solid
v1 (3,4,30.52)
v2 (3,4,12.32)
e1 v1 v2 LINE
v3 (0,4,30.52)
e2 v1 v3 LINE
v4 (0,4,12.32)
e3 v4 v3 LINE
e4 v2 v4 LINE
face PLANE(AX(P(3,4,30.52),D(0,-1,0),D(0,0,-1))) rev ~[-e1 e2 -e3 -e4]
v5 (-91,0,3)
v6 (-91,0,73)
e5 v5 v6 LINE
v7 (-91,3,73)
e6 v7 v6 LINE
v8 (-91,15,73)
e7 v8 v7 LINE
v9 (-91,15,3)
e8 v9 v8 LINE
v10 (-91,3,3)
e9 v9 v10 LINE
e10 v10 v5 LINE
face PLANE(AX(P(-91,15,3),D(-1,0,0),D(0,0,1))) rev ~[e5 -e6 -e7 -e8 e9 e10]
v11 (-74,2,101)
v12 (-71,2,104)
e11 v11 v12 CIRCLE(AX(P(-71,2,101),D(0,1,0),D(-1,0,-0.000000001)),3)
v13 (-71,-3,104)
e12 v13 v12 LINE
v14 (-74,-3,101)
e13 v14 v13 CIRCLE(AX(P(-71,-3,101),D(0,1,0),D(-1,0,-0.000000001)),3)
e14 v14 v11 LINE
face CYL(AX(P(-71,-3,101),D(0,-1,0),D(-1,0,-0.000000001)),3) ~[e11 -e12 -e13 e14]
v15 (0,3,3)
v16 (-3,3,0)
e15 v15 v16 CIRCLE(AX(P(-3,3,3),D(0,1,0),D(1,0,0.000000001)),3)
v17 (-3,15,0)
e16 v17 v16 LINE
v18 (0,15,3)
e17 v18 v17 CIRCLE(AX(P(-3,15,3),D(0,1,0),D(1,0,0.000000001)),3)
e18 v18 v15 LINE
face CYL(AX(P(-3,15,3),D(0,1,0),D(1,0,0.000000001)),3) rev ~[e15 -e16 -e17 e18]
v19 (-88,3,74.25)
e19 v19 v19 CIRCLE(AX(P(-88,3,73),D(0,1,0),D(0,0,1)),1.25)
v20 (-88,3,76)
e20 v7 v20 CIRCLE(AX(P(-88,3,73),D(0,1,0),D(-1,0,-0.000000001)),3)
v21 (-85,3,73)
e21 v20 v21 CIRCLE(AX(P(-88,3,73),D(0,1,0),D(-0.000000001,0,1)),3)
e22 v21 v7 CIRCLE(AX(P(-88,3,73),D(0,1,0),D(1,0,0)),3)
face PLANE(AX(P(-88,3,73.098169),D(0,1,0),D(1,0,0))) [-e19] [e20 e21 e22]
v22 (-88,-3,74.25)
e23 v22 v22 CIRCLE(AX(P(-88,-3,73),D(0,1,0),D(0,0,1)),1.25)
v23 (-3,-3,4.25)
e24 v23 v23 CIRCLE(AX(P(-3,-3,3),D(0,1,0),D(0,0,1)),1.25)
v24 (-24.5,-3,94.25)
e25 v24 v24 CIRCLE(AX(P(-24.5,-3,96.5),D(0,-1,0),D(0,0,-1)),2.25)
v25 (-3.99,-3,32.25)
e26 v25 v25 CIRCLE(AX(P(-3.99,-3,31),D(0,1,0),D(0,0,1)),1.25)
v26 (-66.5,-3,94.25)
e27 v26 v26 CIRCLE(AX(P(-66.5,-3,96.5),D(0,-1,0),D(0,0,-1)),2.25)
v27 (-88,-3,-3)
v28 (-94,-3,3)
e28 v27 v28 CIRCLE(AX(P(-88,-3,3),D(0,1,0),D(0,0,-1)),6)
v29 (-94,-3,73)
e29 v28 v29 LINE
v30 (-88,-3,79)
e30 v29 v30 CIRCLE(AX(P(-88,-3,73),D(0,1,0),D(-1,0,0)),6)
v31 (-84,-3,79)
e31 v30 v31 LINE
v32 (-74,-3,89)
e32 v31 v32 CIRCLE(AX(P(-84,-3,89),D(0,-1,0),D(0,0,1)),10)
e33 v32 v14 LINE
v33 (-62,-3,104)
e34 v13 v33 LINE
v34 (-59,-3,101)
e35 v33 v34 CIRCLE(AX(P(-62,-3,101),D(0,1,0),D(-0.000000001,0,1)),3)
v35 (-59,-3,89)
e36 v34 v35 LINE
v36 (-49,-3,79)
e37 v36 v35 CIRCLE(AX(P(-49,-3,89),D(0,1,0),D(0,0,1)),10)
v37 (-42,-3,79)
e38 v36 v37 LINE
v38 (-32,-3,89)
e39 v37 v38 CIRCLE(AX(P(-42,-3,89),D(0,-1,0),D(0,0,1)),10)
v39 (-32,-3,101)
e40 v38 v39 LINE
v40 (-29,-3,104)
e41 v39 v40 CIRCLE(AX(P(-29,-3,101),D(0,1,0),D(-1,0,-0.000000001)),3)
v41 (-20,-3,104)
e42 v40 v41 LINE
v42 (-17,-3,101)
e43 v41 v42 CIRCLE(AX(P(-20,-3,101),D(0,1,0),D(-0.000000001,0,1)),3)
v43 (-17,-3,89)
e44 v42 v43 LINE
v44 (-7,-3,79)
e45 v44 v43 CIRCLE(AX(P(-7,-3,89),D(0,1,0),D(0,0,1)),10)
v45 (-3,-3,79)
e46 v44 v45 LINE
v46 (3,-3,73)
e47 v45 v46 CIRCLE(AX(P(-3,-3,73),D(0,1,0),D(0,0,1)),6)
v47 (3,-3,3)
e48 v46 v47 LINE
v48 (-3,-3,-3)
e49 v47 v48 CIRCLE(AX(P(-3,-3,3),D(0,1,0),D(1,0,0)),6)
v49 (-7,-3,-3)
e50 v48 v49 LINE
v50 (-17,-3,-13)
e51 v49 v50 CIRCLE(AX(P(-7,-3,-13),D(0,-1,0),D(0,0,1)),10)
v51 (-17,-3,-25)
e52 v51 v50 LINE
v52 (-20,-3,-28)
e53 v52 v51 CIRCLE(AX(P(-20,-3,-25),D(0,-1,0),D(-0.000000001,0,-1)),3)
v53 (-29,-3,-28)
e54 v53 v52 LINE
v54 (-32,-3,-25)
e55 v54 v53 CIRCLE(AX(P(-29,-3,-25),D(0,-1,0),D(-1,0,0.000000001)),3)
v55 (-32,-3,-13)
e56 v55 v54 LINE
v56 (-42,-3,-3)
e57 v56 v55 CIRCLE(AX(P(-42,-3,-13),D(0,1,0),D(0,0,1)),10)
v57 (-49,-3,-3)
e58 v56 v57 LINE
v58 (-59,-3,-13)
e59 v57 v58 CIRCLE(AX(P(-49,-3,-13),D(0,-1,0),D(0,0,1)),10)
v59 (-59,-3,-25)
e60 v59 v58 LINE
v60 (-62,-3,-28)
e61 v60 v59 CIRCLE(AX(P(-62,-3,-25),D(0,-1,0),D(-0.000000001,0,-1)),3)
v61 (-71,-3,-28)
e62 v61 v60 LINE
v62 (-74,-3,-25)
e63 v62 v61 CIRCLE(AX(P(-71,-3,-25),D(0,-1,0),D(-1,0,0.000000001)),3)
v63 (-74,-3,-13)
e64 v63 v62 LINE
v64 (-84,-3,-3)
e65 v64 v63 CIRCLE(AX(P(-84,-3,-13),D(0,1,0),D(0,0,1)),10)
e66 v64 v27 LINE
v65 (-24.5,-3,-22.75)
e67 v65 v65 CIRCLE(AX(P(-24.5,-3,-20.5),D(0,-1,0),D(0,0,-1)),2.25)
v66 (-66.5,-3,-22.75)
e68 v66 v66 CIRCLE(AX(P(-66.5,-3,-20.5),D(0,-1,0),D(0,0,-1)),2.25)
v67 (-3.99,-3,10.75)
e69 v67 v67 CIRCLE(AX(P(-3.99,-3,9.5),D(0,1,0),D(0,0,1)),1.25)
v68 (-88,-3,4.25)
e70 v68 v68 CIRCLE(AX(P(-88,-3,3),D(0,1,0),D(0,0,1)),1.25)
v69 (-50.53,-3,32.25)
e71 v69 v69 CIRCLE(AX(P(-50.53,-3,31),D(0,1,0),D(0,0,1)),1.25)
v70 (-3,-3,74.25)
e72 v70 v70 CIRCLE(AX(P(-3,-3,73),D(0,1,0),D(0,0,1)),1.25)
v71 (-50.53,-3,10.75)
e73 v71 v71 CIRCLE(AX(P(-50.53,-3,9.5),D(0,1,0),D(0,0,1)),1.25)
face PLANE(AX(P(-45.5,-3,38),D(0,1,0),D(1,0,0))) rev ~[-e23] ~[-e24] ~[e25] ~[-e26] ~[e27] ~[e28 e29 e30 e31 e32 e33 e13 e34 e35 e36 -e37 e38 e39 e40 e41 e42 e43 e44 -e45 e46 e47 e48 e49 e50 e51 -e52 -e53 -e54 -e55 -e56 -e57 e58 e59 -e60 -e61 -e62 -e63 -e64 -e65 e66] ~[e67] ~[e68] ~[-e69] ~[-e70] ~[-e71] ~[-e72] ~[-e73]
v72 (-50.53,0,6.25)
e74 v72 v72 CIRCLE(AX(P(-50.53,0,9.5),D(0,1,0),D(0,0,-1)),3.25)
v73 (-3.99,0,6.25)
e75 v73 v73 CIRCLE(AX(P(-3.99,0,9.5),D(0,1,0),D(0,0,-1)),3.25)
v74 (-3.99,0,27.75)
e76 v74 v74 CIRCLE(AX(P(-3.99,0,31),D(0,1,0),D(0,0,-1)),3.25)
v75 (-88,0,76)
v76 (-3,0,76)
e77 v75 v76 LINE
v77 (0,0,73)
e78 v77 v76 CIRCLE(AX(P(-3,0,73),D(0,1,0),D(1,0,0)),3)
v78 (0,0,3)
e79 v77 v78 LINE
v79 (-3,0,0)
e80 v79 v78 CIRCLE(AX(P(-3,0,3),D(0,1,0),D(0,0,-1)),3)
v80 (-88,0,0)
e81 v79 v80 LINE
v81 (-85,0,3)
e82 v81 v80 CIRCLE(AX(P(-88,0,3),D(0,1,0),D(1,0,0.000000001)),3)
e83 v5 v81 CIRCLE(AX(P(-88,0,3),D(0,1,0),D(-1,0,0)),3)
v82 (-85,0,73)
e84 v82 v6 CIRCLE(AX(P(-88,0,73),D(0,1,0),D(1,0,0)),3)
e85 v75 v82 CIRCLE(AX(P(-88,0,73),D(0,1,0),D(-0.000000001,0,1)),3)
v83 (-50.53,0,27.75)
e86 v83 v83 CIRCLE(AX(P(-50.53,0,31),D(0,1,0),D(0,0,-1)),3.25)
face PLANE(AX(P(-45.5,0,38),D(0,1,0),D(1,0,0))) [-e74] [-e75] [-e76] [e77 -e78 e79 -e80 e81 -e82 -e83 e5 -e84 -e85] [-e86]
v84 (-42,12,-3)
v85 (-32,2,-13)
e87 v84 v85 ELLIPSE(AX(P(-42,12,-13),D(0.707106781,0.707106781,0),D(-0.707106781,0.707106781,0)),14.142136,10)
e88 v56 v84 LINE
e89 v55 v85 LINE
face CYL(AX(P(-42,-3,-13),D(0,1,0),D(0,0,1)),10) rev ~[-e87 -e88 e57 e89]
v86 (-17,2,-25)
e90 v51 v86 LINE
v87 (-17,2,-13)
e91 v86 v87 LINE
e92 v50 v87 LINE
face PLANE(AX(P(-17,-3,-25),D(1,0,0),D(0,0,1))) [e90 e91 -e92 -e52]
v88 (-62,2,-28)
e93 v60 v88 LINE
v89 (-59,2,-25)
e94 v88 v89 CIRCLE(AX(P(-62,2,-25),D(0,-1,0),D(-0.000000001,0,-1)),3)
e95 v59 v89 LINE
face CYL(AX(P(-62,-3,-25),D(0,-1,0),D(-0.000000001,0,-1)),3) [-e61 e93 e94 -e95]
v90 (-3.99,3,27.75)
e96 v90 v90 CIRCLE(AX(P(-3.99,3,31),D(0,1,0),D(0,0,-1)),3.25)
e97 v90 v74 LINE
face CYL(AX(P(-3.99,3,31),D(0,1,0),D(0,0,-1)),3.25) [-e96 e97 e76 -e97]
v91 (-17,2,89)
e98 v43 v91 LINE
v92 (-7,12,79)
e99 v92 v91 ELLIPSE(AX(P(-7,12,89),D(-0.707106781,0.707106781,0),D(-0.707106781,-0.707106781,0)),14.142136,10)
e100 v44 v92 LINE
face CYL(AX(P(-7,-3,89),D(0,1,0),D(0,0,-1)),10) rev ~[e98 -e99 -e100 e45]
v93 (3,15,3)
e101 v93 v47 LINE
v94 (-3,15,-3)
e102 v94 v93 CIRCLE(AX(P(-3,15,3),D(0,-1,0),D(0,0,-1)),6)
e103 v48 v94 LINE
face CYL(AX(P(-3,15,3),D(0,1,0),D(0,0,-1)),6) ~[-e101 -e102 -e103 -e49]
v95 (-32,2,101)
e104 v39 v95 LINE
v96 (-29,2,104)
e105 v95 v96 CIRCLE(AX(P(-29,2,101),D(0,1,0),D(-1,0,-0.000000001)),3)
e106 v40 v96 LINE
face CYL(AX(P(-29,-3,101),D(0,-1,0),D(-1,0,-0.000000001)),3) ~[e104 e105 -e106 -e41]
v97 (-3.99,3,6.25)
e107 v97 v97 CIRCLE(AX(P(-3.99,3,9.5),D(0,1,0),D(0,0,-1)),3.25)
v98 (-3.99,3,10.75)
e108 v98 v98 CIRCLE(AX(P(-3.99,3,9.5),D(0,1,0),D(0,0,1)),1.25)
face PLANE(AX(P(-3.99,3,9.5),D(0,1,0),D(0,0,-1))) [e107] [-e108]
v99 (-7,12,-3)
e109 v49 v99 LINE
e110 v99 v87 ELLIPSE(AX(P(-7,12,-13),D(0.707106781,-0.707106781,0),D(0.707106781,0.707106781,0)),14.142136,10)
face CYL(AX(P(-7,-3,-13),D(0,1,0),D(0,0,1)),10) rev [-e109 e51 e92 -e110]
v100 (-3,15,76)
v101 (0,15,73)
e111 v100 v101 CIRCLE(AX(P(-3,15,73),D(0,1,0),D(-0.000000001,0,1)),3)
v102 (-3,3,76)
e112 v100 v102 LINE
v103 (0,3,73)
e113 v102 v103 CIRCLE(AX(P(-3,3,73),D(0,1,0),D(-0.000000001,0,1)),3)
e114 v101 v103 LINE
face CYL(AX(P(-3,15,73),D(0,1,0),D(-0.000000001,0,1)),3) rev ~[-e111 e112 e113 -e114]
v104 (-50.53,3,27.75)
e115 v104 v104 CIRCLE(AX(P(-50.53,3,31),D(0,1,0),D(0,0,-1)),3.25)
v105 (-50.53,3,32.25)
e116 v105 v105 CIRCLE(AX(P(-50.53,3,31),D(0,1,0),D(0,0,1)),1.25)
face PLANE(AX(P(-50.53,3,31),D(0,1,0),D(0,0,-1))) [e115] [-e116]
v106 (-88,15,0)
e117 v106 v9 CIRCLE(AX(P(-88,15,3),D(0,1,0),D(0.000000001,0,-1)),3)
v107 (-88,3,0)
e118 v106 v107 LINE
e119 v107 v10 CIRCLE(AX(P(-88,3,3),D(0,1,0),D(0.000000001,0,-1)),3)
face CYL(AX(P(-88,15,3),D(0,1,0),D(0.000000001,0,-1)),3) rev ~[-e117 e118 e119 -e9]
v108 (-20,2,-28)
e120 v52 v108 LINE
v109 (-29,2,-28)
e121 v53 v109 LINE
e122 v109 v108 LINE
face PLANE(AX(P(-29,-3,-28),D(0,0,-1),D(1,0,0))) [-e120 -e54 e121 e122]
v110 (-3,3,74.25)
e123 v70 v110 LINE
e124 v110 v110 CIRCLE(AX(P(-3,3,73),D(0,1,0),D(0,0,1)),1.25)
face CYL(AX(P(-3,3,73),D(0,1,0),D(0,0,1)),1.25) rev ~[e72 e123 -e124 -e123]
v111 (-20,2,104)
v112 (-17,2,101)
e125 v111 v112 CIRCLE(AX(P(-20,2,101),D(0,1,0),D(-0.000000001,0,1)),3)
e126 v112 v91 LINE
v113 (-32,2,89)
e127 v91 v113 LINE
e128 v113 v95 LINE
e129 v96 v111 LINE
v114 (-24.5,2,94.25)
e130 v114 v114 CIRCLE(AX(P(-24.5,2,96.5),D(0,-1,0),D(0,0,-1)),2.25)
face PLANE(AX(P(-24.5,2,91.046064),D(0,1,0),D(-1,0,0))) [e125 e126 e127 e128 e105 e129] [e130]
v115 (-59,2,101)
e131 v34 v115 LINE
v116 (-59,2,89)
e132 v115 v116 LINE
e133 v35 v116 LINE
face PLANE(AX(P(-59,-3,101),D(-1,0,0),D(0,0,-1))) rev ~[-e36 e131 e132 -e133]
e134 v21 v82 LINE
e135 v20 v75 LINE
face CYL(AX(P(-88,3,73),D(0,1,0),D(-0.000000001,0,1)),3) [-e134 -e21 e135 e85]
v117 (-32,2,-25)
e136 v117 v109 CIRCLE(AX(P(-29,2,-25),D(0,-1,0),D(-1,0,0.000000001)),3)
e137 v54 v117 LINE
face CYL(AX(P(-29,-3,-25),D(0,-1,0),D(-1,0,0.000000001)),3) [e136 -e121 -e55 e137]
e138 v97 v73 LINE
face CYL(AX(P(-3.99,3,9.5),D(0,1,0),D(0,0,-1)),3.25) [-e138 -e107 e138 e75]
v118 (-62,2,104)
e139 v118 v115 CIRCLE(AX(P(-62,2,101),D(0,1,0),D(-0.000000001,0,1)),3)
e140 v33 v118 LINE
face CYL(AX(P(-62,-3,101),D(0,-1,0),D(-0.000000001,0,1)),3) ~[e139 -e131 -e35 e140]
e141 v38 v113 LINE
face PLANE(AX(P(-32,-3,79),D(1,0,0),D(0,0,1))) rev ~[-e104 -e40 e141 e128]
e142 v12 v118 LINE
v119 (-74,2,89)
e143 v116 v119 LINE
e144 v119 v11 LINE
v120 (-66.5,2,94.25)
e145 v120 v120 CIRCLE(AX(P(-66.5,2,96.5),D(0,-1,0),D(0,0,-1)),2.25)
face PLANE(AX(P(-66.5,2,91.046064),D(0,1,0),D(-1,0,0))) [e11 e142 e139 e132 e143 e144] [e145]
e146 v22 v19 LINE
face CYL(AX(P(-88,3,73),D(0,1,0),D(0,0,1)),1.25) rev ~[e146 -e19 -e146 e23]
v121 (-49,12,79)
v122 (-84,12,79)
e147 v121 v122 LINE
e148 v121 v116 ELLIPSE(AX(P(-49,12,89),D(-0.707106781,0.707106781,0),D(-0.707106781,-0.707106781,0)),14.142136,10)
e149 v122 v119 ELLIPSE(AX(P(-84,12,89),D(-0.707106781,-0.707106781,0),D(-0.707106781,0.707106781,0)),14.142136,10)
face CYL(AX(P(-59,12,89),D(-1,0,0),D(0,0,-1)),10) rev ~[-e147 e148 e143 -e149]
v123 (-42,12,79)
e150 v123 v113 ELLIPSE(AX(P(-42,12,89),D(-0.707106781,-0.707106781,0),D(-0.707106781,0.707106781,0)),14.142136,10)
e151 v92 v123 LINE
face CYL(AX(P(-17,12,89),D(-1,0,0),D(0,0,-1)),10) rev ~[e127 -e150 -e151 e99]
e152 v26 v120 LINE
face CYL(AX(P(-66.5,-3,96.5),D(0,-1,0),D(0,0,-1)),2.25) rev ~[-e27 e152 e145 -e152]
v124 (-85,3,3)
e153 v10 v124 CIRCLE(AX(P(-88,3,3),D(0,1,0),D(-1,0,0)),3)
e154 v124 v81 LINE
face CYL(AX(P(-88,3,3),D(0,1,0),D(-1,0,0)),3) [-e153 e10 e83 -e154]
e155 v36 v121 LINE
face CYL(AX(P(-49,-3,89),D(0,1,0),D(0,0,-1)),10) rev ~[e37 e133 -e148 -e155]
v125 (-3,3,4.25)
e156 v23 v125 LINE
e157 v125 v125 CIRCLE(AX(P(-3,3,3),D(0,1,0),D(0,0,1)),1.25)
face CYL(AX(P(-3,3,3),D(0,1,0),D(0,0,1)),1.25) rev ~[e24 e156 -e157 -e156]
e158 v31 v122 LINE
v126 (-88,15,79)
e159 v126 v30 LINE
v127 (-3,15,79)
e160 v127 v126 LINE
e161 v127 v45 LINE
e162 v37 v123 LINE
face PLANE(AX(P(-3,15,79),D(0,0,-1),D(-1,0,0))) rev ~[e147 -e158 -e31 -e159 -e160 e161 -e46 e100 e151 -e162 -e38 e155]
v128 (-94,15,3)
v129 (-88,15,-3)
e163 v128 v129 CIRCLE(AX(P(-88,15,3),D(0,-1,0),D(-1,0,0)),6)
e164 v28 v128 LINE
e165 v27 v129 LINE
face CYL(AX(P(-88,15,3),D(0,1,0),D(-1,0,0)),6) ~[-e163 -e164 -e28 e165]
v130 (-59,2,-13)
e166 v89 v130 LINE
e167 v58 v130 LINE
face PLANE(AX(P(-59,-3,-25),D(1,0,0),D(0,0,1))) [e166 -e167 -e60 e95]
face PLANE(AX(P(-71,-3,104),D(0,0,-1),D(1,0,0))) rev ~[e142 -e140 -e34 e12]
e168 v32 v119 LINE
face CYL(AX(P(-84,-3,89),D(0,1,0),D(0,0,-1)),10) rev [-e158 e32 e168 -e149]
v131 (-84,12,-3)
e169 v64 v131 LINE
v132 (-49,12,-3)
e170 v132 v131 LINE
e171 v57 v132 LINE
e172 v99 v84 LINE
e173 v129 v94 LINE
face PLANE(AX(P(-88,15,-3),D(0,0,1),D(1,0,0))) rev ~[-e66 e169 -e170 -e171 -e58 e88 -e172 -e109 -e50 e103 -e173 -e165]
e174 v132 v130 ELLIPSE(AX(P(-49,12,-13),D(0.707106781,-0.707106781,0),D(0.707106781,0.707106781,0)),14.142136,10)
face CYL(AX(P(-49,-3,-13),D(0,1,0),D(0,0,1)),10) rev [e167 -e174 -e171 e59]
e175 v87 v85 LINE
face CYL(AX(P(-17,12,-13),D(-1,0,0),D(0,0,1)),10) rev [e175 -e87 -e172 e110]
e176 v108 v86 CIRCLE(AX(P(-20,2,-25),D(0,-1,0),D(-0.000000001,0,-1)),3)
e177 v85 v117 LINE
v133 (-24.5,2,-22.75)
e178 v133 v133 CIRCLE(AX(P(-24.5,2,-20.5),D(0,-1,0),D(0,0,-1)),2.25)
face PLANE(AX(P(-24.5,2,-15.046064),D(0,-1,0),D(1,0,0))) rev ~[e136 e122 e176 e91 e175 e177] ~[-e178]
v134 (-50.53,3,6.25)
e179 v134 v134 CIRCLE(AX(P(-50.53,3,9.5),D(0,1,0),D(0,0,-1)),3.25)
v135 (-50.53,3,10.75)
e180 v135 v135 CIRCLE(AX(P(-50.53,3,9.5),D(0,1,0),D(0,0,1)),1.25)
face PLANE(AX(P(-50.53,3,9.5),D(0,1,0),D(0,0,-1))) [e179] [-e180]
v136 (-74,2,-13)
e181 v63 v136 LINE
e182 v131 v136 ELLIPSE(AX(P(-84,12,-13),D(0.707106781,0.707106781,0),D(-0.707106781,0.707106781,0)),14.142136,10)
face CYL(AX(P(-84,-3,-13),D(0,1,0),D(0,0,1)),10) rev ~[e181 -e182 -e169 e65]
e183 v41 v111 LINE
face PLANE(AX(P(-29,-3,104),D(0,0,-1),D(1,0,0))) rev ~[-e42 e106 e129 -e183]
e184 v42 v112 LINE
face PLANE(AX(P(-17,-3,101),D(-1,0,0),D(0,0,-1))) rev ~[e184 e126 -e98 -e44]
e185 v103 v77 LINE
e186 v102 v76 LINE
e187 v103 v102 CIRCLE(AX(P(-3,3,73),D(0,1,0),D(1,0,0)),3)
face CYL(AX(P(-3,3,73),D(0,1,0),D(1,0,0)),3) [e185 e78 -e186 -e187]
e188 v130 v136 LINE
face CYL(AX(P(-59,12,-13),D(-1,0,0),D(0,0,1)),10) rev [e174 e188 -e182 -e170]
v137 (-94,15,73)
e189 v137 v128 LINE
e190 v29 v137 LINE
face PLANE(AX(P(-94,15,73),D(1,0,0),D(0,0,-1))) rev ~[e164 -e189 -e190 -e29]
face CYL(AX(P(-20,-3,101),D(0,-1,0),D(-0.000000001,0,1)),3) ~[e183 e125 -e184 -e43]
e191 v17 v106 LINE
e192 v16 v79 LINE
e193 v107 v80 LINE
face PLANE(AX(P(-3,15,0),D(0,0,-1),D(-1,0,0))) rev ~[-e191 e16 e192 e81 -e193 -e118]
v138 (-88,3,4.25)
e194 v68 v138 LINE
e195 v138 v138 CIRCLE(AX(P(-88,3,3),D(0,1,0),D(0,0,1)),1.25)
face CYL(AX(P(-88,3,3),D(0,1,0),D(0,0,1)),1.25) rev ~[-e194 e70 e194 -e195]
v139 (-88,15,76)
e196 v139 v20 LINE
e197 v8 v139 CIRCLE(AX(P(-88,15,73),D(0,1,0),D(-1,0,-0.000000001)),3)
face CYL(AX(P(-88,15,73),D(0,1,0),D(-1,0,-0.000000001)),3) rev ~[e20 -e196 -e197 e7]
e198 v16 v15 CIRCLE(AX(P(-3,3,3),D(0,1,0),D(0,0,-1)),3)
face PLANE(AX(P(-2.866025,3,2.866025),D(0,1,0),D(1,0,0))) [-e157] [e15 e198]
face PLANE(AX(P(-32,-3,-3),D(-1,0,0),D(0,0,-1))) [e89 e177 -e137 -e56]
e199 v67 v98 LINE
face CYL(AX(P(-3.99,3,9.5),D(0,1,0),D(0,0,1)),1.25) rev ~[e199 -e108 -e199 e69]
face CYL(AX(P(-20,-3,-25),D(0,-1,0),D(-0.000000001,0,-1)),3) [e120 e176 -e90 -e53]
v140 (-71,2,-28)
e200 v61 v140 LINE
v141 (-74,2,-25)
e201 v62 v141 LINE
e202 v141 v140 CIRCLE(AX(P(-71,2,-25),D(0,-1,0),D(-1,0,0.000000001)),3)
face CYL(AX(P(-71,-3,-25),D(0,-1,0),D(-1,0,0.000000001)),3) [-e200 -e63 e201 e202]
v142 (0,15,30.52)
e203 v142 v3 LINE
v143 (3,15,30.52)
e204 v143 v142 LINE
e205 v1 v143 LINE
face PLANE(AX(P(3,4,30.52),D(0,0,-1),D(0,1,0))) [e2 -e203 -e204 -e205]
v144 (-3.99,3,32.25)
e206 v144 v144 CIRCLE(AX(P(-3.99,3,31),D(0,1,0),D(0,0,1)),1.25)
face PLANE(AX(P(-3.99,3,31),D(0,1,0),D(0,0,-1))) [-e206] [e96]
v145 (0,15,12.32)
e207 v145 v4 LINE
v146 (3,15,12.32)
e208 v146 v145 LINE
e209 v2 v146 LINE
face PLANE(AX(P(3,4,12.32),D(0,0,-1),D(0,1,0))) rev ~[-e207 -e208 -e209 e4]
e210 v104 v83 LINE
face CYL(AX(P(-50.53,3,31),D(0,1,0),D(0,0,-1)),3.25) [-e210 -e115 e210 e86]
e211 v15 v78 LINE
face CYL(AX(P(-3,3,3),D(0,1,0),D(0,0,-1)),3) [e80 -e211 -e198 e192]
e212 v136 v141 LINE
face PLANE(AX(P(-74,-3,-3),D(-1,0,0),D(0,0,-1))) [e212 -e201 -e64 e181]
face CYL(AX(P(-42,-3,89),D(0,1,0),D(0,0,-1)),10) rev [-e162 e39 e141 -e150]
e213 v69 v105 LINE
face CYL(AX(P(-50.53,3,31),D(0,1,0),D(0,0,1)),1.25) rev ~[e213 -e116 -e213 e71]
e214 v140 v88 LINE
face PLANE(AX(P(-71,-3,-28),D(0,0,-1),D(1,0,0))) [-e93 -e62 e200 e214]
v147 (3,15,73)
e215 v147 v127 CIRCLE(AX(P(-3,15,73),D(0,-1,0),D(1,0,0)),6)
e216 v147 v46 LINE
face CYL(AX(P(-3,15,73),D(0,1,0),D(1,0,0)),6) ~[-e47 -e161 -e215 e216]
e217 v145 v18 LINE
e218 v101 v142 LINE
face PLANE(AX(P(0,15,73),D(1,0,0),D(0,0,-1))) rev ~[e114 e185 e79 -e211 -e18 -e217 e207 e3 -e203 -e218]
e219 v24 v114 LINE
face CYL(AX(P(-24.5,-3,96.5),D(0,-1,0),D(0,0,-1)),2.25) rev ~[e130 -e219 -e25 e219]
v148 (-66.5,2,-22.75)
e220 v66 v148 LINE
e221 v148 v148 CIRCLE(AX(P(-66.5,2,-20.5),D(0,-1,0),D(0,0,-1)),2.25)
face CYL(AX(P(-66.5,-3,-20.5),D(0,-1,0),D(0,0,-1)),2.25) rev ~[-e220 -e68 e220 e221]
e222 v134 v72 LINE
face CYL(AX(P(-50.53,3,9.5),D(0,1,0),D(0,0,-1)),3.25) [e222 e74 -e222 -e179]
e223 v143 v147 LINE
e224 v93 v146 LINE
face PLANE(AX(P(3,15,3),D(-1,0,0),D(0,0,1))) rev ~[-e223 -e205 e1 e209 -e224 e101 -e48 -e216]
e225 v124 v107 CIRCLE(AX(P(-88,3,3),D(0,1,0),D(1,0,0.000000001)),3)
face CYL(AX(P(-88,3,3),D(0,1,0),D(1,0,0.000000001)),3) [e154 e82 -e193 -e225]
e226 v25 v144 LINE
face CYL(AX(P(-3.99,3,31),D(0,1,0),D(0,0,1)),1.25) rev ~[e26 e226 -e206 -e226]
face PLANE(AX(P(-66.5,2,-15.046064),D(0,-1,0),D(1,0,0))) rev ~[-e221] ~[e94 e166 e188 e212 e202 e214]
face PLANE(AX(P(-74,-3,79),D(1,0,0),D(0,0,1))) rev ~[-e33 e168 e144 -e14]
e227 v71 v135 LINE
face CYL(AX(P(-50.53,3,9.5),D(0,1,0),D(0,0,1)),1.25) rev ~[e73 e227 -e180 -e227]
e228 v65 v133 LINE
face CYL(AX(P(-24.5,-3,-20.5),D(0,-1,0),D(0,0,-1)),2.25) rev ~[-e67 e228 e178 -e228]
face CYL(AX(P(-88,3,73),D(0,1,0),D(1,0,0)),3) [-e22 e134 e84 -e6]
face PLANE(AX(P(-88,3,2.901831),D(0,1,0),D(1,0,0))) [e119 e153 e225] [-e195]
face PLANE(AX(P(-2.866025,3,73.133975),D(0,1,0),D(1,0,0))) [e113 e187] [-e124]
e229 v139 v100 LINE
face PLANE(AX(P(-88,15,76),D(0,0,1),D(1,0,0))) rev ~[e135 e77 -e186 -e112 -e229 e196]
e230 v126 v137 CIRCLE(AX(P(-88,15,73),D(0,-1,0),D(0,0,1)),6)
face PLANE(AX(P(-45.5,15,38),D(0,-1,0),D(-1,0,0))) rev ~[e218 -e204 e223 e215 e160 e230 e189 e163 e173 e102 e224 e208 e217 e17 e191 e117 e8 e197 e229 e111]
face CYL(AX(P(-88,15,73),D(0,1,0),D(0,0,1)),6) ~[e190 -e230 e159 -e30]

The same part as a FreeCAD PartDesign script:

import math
import FreeCAD as App
import Part
import Sketcher


def edges_at(feature, points):
    """Names of the edges that pass closest to the given points."""
    edges = feature.Shape.Edges
    near = lambda p: min(range(len(edges)), key=lambda i: edges[i].distToShape(Part.Vertex(*p))[0])
    return sorted({f"Edge{near(p) + 1}" for p in points})


def add_polygon(sketch, points):
    """Adds a closed chain of lines whose ends are joined by coincident constraints."""
    first, n = sketch.GeometryCount, len(points)
    for a, b in zip(points, points[1:] + points[:1]):
        sketch.addGeometry(Part.LineSegment(App.Vector(*a, 0), App.Vector(*b, 0)), False)
    for i in range(n):
        sketch.addConstraint(Sketcher.Constraint("Coincident", first + i, 2, first + (i + 1) % n, 1))

doc = App.newDocument("Part")
params = doc.addObject("Spreadsheet::Sheet", "Params")
for row, (alias, value) in enumerate([
    ("sketch1_radius", "6 mm"),
    ("sketch1_width", "85 mm"),
    ("sketch1_height", "70 mm"),
    ("pad1_length", "3 mm"),
    ("sketch2_radius", "6 mm"),
    ("sketch2_width", "85 mm"),
    ("sketch2_height", "70 mm"),
    ("pad2_length", "15 mm"),
    ("sketch3_radius", "3 mm"),
    ("sketch3_diameter", "2.5 mm"),
    ("sketch3_diameter2", "6.5 mm"),
    ("pad3_length", "3 mm"),
    ("sketch4_diameter", "2.5 mm"),
    ("sketch5_width", "11 mm"),
    ("sketch5_height", "18.2 mm"),
    ("sketch6_radius", "3 mm"),
    ("sketch6_diameter", "4.5 mm"),
    ("sketch6_width", "15 mm"),
    ("sketch6_height", "22 mm"),
    ("pad4_length", "5 mm"),
    ("fillet_radius", "10 mm"),
], start=1):
    params.set(f"A{row}", alias)
    params.set(f"B{row}", "=" + value)
    params.setAlias(f"B{row}", alias)

body = doc.addObject("PartDesign::Body", "Body")

# Sketch on XZ plane
sketch1 = body.newObject("Sketcher::SketchObject", "Sketch")
sketch1.AttachmentSupport = (doc.getObject("XZ_Plane"), [""])
sketch1.MapMode = "FlatFace"
sketch1.addGeometry(Part.LineSegment(App.Vector(-3, -3, 0), App.Vector(-88, -3, 0)), False)
sketch1.addGeometry(Part.ArcOfCircle(Part.Circle(App.Vector(-88, 3, 0), App.Vector(0, 0, 1), 6), math.radians(180), math.radians(270)), False)
sketch1.addGeometry(Part.LineSegment(App.Vector(-94, 3, 0), App.Vector(-94, 73, 0)), False)
sketch1.addGeometry(Part.ArcOfCircle(Part.Circle(App.Vector(-88, 73, 0), App.Vector(0, 0, 1), 6), math.radians(90), math.radians(180)), False)
sketch1.addGeometry(Part.LineSegment(App.Vector(-88, 79, 0), App.Vector(-3, 79, 0)), False)
sketch1.addGeometry(Part.ArcOfCircle(Part.Circle(App.Vector(-3, 73, 0), App.Vector(0, 0, 1), 6), math.radians(0), math.radians(90)), False)
sketch1.addGeometry(Part.LineSegment(App.Vector(3, 73, 0), App.Vector(3, 3, 0)), False)
sketch1.addGeometry(Part.ArcOfCircle(Part.Circle(App.Vector(-3, 3, 0), App.Vector(0, 0, 1), 6), math.radians(-90), math.radians(0)), False)
sketch1.addConstraint(Sketcher.Constraint("Tangent", 0, 2, 1, 2))
sketch1.addConstraint(Sketcher.Constraint("Tangent", 1, 1, 2, 1))
sketch1.addConstraint(Sketcher.Constraint("Tangent", 2, 2, 3, 2))
sketch1.addConstraint(Sketcher.Constraint("Tangent", 3, 1, 4, 1))
sketch1.addConstraint(Sketcher.Constraint("Tangent", 4, 2, 5, 2))
sketch1.addConstraint(Sketcher.Constraint("Tangent", 5, 1, 6, 1))
sketch1.addConstraint(Sketcher.Constraint("Tangent", 6, 2, 7, 2))
sketch1.addConstraint(Sketcher.Constraint("Tangent", 7, 1, 0, 1))
sketch1.addConstraint(Sketcher.Constraint("Horizontal", 0))
sketch1.addConstraint(Sketcher.Constraint("Vertical", 2))
sketch1.addConstraint(Sketcher.Constraint("Horizontal", 4))
sketch1.addConstraint(Sketcher.Constraint("Vertical", 6))
sketch1.addConstraint(Sketcher.Constraint("Equal", 1, 3))
sketch1.addConstraint(Sketcher.Constraint("Equal", 3, 5))
sketch1.addConstraint(Sketcher.Constraint("Equal", 5, 7))
sketch1.addConstraint(Sketcher.Constraint("Symmetric", 6, 2, 7, 1, -1, 1))
sketch1.addConstraint(Sketcher.Constraint("Radius", 1, 6.0))
sketch1.addConstraint(Sketcher.Constraint("DistanceX", 0, 2, 0, 1, 85.0))
sketch1.addConstraint(Sketcher.Constraint("DistanceY", 2, 1, 2, 2, 70.0))
sketch1.setExpression("Constraints[16]", "Params.sketch1_radius")
sketch1.setExpression("Constraints[17]", "Params.sketch1_width")
sketch1.setExpression("Constraints[18]", "Params.sketch1_height")
pad1 = body.newObject("PartDesign::Pad", "Pad")
pad1.Profile = sketch1
pad1.setExpression("Length", "Params.pad1_length")

# Sketch on XZ plane
sketch2 = body.newObject("Sketcher::SketchObject", "Sketch001")
sketch2.AttachmentSupport = (doc.getObject("XZ_Plane"), [""])
sketch2.MapMode = "FlatFace"
sketch2.AttachmentOffset = App.Placement(App.Vector(0, 0, -15), App.Rotation())
sketch2.addGeometry(Part.ArcOfCircle(Part.Circle(App.Vector(-3, 3, 0), App.Vector(0, 0, 1), 6), math.radians(-90), math.radians(0)), False)
sketch2.addGeometry(Part.LineSegment(App.Vector(-3, -3, 0), App.Vector(-88, -3, 0)), False)
sketch2.addGeometry(Part.ArcOfCircle(Part.Circle(App.Vector(-88, 3, 0), App.Vector(0, 0, 1), 6), math.radians(180), math.radians(270)), False)
sketch2.addGeometry(Part.LineSegment(App.Vector(-94, 3, 0), App.Vector(-94, 73, 0)), False)
sketch2.addGeometry(Part.ArcOfCircle(Part.Circle(App.Vector(-88, 73, 0), App.Vector(0, 0, 1), 6), math.radians(90), math.radians(180)), False)
sketch2.addGeometry(Part.LineSegment(App.Vector(-88, 79, 0), App.Vector(-3, 79, 0)), False)
sketch2.addGeometry(Part.ArcOfCircle(Part.Circle(App.Vector(-3, 73, 0), App.Vector(0, 0, 1), 6), math.radians(0), math.radians(90)), False)
sketch2.addGeometry(Part.LineSegment(App.Vector(3, 73, 0), App.Vector(3, 3, 0)), False)
sketch2.addGeometry(Part.ArcOfCircle(Part.Circle(App.Vector(-3, 3, 0), App.Vector(0, 0, 1), 3), math.radians(-90), math.radians(0)), False)
sketch2.addGeometry(Part.LineSegment(App.Vector(0, 3, 0), App.Vector(0, 73, 0)), False)
sketch2.addGeometry(Part.ArcOfCircle(Part.Circle(App.Vector(-3, 73, 0), App.Vector(0, 0, 1), 3), math.radians(0), math.radians(90)), False)
sketch2.addGeometry(Part.LineSegment(App.Vector(-3, 76, 0), App.Vector(-88, 76, 0)), False)
sketch2.addGeometry(Part.ArcOfCircle(Part.Circle(App.Vector(-88, 73, 0), App.Vector(0, 0, 1), 3), math.radians(90), math.radians(180)), False)
sketch2.addGeometry(Part.LineSegment(App.Vector(-91, 73, 0), App.Vector(-91, 3, 0)), False)
sketch2.addGeometry(Part.ArcOfCircle(Part.Circle(App.Vector(-88, 3, 0), App.Vector(0, 0, 1), 3), math.radians(180), math.radians(270)), False)
sketch2.addGeometry(Part.LineSegment(App.Vector(-88, 0, 0), App.Vector(-3, 0, 0)), False)
sketch2.addConstraint(Sketcher.Constraint("Tangent", 0, 1, 1, 1))
sketch2.addConstraint(Sketcher.Constraint("Tangent", 1, 2, 2, 2))
sketch2.addConstraint(Sketcher.Constraint("Tangent", 2, 1, 3, 1))
sketch2.addConstraint(Sketcher.Constraint("Tangent", 3, 2, 4, 2))
sketch2.addConstraint(Sketcher.Constraint("Tangent", 4, 1, 5, 1))
sketch2.addConstraint(Sketcher.Constraint("Tangent", 5, 2, 6, 2))
sketch2.addConstraint(Sketcher.Constraint("Tangent", 6, 1, 7, 1))
sketch2.addConstraint(Sketcher.Constraint("Tangent", 7, 2, 0, 2))
sketch2.addConstraint(Sketcher.Constraint("Tangent", 8, 2, 9, 1))
sketch2.addConstraint(Sketcher.Constraint("Tangent", 9, 2, 10, 1))
sketch2.addConstraint(Sketcher.Constraint("Tangent", 10, 2, 11, 1))
sketch2.addConstraint(Sketcher.Constraint("Tangent", 11, 2, 12, 1))
sketch2.addConstraint(Sketcher.Constraint("Tangent", 12, 2, 13, 1))
sketch2.addConstraint(Sketcher.Constraint("Tangent", 13, 2, 14, 1))
sketch2.addConstraint(Sketcher.Constraint("Tangent", 14, 2, 15, 1))
sketch2.addConstraint(Sketcher.Constraint("Tangent", 15, 2, 8, 1))
sketch2.addConstraint(Sketcher.Constraint("Horizontal", 1))
sketch2.addConstraint(Sketcher.Constraint("Vertical", 3))
sketch2.addConstraint(Sketcher.Constraint("Horizontal", 5))
sketch2.addConstraint(Sketcher.Constraint("Vertical", 7))
sketch2.addConstraint(Sketcher.Constraint("Vertical", 9))
sketch2.addConstraint(Sketcher.Constraint("Horizontal", 11))
sketch2.addConstraint(Sketcher.Constraint("Vertical", 13))
sketch2.addConstraint(Sketcher.Constraint("Horizontal", 15))
sketch2.addConstraint(Sketcher.Constraint("Coincident", 8, 3, 0, 3))
sketch2.addConstraint(Sketcher.Constraint("Coincident", 10, 3, 6, 3))
sketch2.addConstraint(Sketcher.Constraint("Coincident", 12, 3, 4, 3))
sketch2.addConstraint(Sketcher.Constraint("Equal", 0, 2))
sketch2.addConstraint(Sketcher.Constraint("Equal", 2, 4))
sketch2.addConstraint(Sketcher.Constraint("Equal", 4, 6))
sketch2.addConstraint(Sketcher.Constraint("Equal", 12, 14))
sketch2.addConstraint(Sketcher.Constraint("Symmetric", 0, 1, 7, 2, -1, 1))
sketch2.addConstraint(Sketcher.Constraint("PointOnObject", 8, 2, -2))
sketch2.addConstraint(Sketcher.Constraint("Radius", 0, 6.0))
sketch2.addConstraint(Sketcher.Constraint("DistanceX", 1, 2, 1, 1, 85.0))
sketch2.addConstraint(Sketcher.Constraint("DistanceY", 3, 1, 3, 2, 70.0))
sketch2.setExpression("Constraints[33]", "Params.sketch2_radius")
sketch2.setExpression("Constraints[34]", "Params.sketch2_width")
sketch2.setExpression("Constraints[35]", "Params.sketch2_height")
pad2 = body.newObject("PartDesign::Pad", "Pad001")
pad2.Profile = sketch2
pad2.setExpression("Length", "Params.pad2_length")

# Sketch on XZ plane
sketch3 = body.newObject("Sketcher::SketchObject", "Sketch002")
sketch3.AttachmentSupport = (doc.getObject("XZ_Plane"), [""])
sketch3.MapMode = "FlatFace"
sketch3.AttachmentOffset = App.Placement(App.Vector(0, 0, -3), App.Rotation())
sketch3.addGeometry(Part.ArcOfCircle(Part.Circle(App.Vector(-88, 3, 0), App.Vector(0, 0, 1), 3), math.radians(-90), math.radians(0)), False)
sketch3.addGeometry(Part.ArcOfCircle(Part.Circle(App.Vector(-88, 3, 0), App.Vector(0, 0, 1), 3), math.radians(180), math.radians(270)), False)
sketch3.addGeometry(Part.ArcOfCircle(Part.Circle(App.Vector(-88, 3, 0), App.Vector(0, 0, 1), 3), math.radians(0), math.radians(180)), False)
sketch3.addGeometry(Part.Circle(App.Vector(-88, 3, 0), App.Vector(0, 0, 1), 1.25), False)
sketch3.addGeometry(Part.Circle(App.Vector(-50.53, 9.5, 0), App.Vector(0, 0, 1), 3.25), False)
sketch3.addGeometry(Part.Circle(App.Vector(-50.53, 9.5, 0), App.Vector(0, 0, 1), 1.25), False)
sketch3.addGeometry(Part.Circle(App.Vector(-50.53, 31, 0), App.Vector(0, 0, 1), 3.25), False)
sketch3.addGeometry(Part.Circle(App.Vector(-50.53, 31, 0), App.Vector(0, 0, 1), 1.25), False)
sketch3.addGeometry(Part.ArcOfCircle(Part.Circle(App.Vector(-3, 3, 0), App.Vector(0, 0, 1), 3), math.radians(-90), math.radians(0)), False)
sketch3.addGeometry(Part.ArcOfCircle(Part.Circle(App.Vector(-3, 3, 0), App.Vector(0, 0, 1), 3), math.radians(0), math.radians(270)), False)
sketch3.addGeometry(Part.Circle(App.Vector(-3, 3, 0), App.Vector(0, 0, 1), 1.25), False)
sketch3.addGeometry(Part.Circle(App.Vector(-3.99, 9.5, 0), App.Vector(0, 0, 1), 3.25), False)
sketch3.addGeometry(Part.Circle(App.Vector(-3.99, 9.5, 0), App.Vector(0, 0, 1), 1.25), False)
sketch3.addGeometry(Part.Circle(App.Vector(-3.99, 31, 0), App.Vector(0, 0, 1), 3.25), False)
sketch3.addGeometry(Part.Circle(App.Vector(-3.99, 31, 0), App.Vector(0, 0, 1), 1.25), False)
sketch3.addGeometry(Part.ArcOfCircle(Part.Circle(App.Vector(-3, 73, 0), App.Vector(0, 0, 1), 3), math.radians(0), math.radians(90)), False)
sketch3.addGeometry(Part.ArcOfCircle(Part.Circle(App.Vector(-3, 73, 0), App.Vector(0, 0, 1), 3), math.radians(90), math.radians(360)), False)
sketch3.addGeometry(Part.Circle(App.Vector(-3, 73, 0), App.Vector(0, 0, 1), 1.25), False)
sketch3.addGeometry(Part.ArcOfCircle(Part.Circle(App.Vector(-88, 73, 0), App.Vector(0, 0, 1), 3), math.radians(180), math.radians(360)), False)
sketch3.addGeometry(Part.ArcOfCircle(Part.Circle(App.Vector(-88, 73, 0), App.Vector(0, 0, 1), 3), math.radians(90), math.radians(180)), False)
sketch3.addGeometry(Part.ArcOfCircle(Part.Circle(App.Vector(-88, 73, 0), App.Vector(0, 0, 1), 3), math.radians(0), math.radians(90)), False)
sketch3.addGeometry(Part.Circle(App.Vector(-88, 73, 0), App.Vector(0, 0, 1), 1.25), False)
sketch3.addConstraint(Sketcher.Constraint("Tangent", 0, 1, 1, 2))
sketch3.addConstraint(Sketcher.Constraint("Tangent", 1, 1, 2, 2))
sketch3.addConstraint(Sketcher.Constraint("Tangent", 2, 1, 0, 2))
sketch3.addConstraint(Sketcher.Constraint("Tangent", 8, 1, 9, 2))
sketch3.addConstraint(Sketcher.Constraint("Coincident", 9, 1, 8, 2))
sketch3.addConstraint(Sketcher.Constraint("Tangent", 15, 1, 16, 2))
sketch3.addConstraint(Sketcher.Constraint("Coincident", 16, 1, 15, 2))
sketch3.addConstraint(Sketcher.Constraint("Tangent", 18, 1, 19, 2))
sketch3.addConstraint(Sketcher.Constraint("Tangent", 19, 1, 20, 2))
sketch3.addConstraint(Sketcher.Constraint("Tangent", 20, 1, 18, 2))
sketch3.addConstraint(Sketcher.Constraint("Coincident", 3, 3, 0, 3))
sketch3.addConstraint(Sketcher.Constraint("Coincident", 5, 3, 4, 3))
sketch3.addConstraint(Sketcher.Constraint("Coincident", 7, 3, 6, 3))
sketch3.addConstraint(Sketcher.Constraint("Coincident", 10, 3, 8, 3))
sketch3.addConstraint(Sketcher.Constraint("Coincident", 12, 3, 11, 3))
sketch3.addConstraint(Sketcher.Constraint("Coincident", 14, 3, 13, 3))
sketch3.addConstraint(Sketcher.Constraint("Coincident", 17, 3, 15, 3))
sketch3.addConstraint(Sketcher.Constraint("Coincident", 21, 3, 18, 3))
sketch3.addConstraint(Sketcher.Constraint("Equal", 3, 5))
sketch3.addConstraint(Sketcher.Constraint("Equal", 4, 6))
sketch3.addConstraint(Sketcher.Constraint("Equal", 5, 7))
sketch3.addConstraint(Sketcher.Constraint("Equal", 2, 8))
sketch3.addConstraint(Sketcher.Constraint("Equal", 7, 10))
sketch3.addConstraint(Sketcher.Constraint("Equal", 6, 11))
sketch3.addConstraint(Sketcher.Constraint("Equal", 10, 12))
sketch3.addConstraint(Sketcher.Constraint("Equal", 11, 13))
sketch3.addConstraint(Sketcher.Constraint("Equal", 12, 14))
sketch3.addConstraint(Sketcher.Constraint("Equal", 9, 15))
sketch3.addConstraint(Sketcher.Constraint("Equal", 14, 17))
sketch3.addConstraint(Sketcher.Constraint("Equal", 16, 18))
sketch3.addConstraint(Sketcher.Constraint("Equal", 17, 21))
sketch3.addConstraint(Sketcher.Constraint("PointOnObject", 0, 1, -1))
sketch3.addConstraint(Sketcher.Constraint("PointOnObject", 8, 1, -1))
sketch3.addConstraint(Sketcher.Constraint("PointOnObject", 9, 1, -2))
sketch3.addConstraint(Sketcher.Constraint("PointOnObject", 15, 1, -2))
sketch3.addConstraint(Sketcher.Constraint("Horizontal", 5, 3, 11, 3))
sketch3.addConstraint(Sketcher.Constraint("Horizontal", 7, 3, 13, 3))
sketch3.addConstraint(Sketcher.Constraint("Horizontal", 17, 3, 18, 3))
sketch3.addConstraint(Sketcher.Constraint("Horizontal", 10, 3, 1, 1))
sketch3.addConstraint(Sketcher.Constraint("Horizontal", 1, 1, 2, 1))
sketch3.addConstraint(Sketcher.Constraint("Horizontal", 2, 1, 9, 1))
sketch3.addConstraint(Sketcher.Constraint("Horizontal", 21, 3, 15, 1))
sketch3.addConstraint(Sketcher.Constraint("Horizontal", 15, 1, 18, 1))
sketch3.addConstraint(Sketcher.Constraint("Horizontal", 18, 1, 20, 1))
sketch3.addConstraint(Sketcher.Constraint("Vertical", 5, 3, 6, 3))
sketch3.addConstraint(Sketcher.Constraint("Vertical", 12, 3, 13, 3))
sketch3.addConstraint(Sketcher.Constraint("Vertical", 3, 3, 18, 3))
sketch3.addConstraint(Sketcher.Constraint("Vertical", 21, 3, 0, 1))
sketch3.addConstraint(Sketcher.Constraint("Vertical", 17, 3, 8, 1))
sketch3.addConstraint(Sketcher.Constraint("Vertical", 8, 1, 16, 1))
sketch3.addConstraint(Sketcher.Constraint("Vertical", 0, 1, 19, 1))
sketch3.addConstraint(Sketcher.Constraint("Radius", 0, 3.0))
sketch3.addConstraint(Sketcher.Constraint("Diameter", 3, 2.5))
sketch3.addConstraint(Sketcher.Constraint("Diameter", 4, 6.5))
sketch3.addConstraint(Sketcher.Constraint("DistanceX", 0, 3, -1, 1, 88.0))
sketch3.addConstraint(Sketcher.Constraint("DistanceY", -1, 1, 6, 3, 31.0))
sketch3.addConstraint(Sketcher.Constraint("DistanceY", -1, 1, 15, 3, 73.0))
sketch3.addConstraint(Sketcher.Constraint("DistanceY", -1, 1, 4, 3, 9.5))
sketch3.addConstraint(Sketcher.Constraint("DistanceX", 4, 3, -1, 1, 50.53))
sketch3.addConstraint(Sketcher.Constraint("DistanceX", 11, 3, -1, 1, 3.99))
sketch3.setExpression("Constraints[51]", "Params.sketch3_radius")
sketch3.setExpression("Constraints[52]", "Params.sketch3_diameter")
sketch3.setExpression("Constraints[53]", "Params.sketch3_diameter2")
pad3 = body.newObject("PartDesign::Pad", "Pad002")
pad3.Profile = sketch3
pad3.setExpression("Length", "Params.pad3_length")

# Sketch on XZ plane
sketch4 = body.newObject("Sketcher::SketchObject", "Sketch003")
sketch4.AttachmentSupport = (doc.getObject("XZ_Plane"), [""])
sketch4.MapMode = "FlatFace"
sketch4.addGeometry(Part.Circle(App.Vector(-3.99, 9.5, 0), App.Vector(0, 0, 1), 1.25), False)
sketch4.addGeometry(Part.Circle(App.Vector(-50.53, 9.5, 0), App.Vector(0, 0, 1), 1.25), False)
sketch4.addGeometry(Part.Circle(App.Vector(-3.99, 31, 0), App.Vector(0, 0, 1), 1.25), False)
sketch4.addGeometry(Part.Circle(App.Vector(-50.53, 31, 0), App.Vector(0, 0, 1), 1.25), False)
sketch4.addGeometry(Part.Circle(App.Vector(-3, 3, 0), App.Vector(0, 0, 1), 1.25), False)
sketch4.addGeometry(Part.Circle(App.Vector(-88, 3, 0), App.Vector(0, 0, 1), 1.25), False)
sketch4.addGeometry(Part.Circle(App.Vector(-88, 73, 0), App.Vector(0, 0, 1), 1.25), False)
sketch4.addGeometry(Part.Circle(App.Vector(-3, 73, 0), App.Vector(0, 0, 1), 1.25), False)
sketch4.addConstraint(Sketcher.Constraint("Equal", 0, 1))
sketch4.addConstraint(Sketcher.Constraint("Equal", 1, 2))
sketch4.addConstraint(Sketcher.Constraint("Equal", 2, 3))
sketch4.addConstraint(Sketcher.Constraint("Equal", 3, 4))
sketch4.addConstraint(Sketcher.Constraint("Equal", 4, 5))
sketch4.addConstraint(Sketcher.Constraint("Equal", 5, 6))
sketch4.addConstraint(Sketcher.Constraint("Equal", 6, 7))
sketch4.addConstraint(Sketcher.Constraint("Horizontal", 0, 3, 1, 3))
sketch4.addConstraint(Sketcher.Constraint("Horizontal", 2, 3, 3, 3))
sketch4.addConstraint(Sketcher.Constraint("Horizontal", 4, 3, 5, 3))
sketch4.addConstraint(Sketcher.Constraint("Horizontal", 6, 3, 7, 3))
sketch4.addConstraint(Sketcher.Constraint("Vertical", 0, 3, 2, 3))
sketch4.addConstraint(Sketcher.Constraint("Vertical", 1, 3, 3, 3))
sketch4.addConstraint(Sketcher.Constraint("Vertical", 5, 3, 6, 3))
sketch4.addConstraint(Sketcher.Constraint("Vertical", 4, 3, 7, 3))
sketch4.addConstraint(Sketcher.Constraint("Diameter", 0, 2.5))
sketch4.addConstraint(Sketcher.Constraint("DistanceY", -1, 1, 2, 3, 31.0))
sketch4.addConstraint(Sketcher.Constraint("DistanceX", 4, 3, -1, 1, 3.0))
sketch4.addConstraint(Sketcher.Constraint("DistanceY", -1, 1, 4, 3, 3.0))
sketch4.addConstraint(Sketcher.Constraint("DistanceX", 5, 3, -1, 1, 88.0))
sketch4.addConstraint(Sketcher.Constraint("DistanceY", -1, 1, 6, 3, 73.0))
sketch4.addConstraint(Sketcher.Constraint("DistanceY", -1, 1, 0, 3, 9.5))
sketch4.addConstraint(Sketcher.Constraint("DistanceX", 0, 3, -1, 1, 3.99))
sketch4.addConstraint(Sketcher.Constraint("DistanceX", 1, 3, -1, 1, 50.53))
sketch4.setExpression("Constraints[15]", "Params.sketch4_diameter")
pocket1 = body.newObject("PartDesign::Pocket", "Pocket")
pocket1.Profile = sketch4
pocket1.Type = "ThroughAll"
pocket1.Reversed = True

# Sketch on YZ plane
sketch5 = body.newObject("Sketcher::SketchObject", "Sketch004")
sketch5.AttachmentSupport = (doc.getObject("YZ_Plane"), [""])
sketch5.MapMode = "FlatFace"
sketch5.AttachmentOffset = App.Placement(App.Vector(0, 0, 3), App.Rotation())
add_polygon(sketch5, [(15, 30.52), (4, 30.52), (4, 12.32), (15, 12.32)])  # lines 0-3
sketch5.addConstraint(Sketcher.Constraint("Horizontal", 0))
sketch5.addConstraint(Sketcher.Constraint("Vertical", 1))
sketch5.addConstraint(Sketcher.Constraint("Horizontal", 2))
sketch5.addConstraint(Sketcher.Constraint("Vertical", 3))
sketch5.addConstraint(Sketcher.Constraint("DistanceX", 0, 2, 0, 1, 11.0))
sketch5.addConstraint(Sketcher.Constraint("DistanceY", 1, 2, 1, 1, 18.2))
sketch5.addConstraint(Sketcher.Constraint("DistanceX", -1, 1, 0, 2, 4.0))
sketch5.addConstraint(Sketcher.Constraint("DistanceY", -1, 1, 0, 2, 30.52))
sketch5.setExpression("Constraints[8]", "Params.sketch5_width")
sketch5.setExpression("Constraints[9]", "Params.sketch5_height")
pocket2 = body.newObject("PartDesign::Pocket", "Pocket001")
pocket2.Profile = sketch5
pocket2.Type = "UpToFirst"

# Sketch on XZ plane
sketch6 = body.newObject("Sketcher::SketchObject", "Sketch005")
sketch6.AttachmentSupport = (doc.getObject("XZ_Plane"), [""])
sketch6.MapMode = "FlatFace"
sketch6.AttachmentOffset = App.Placement(App.Vector(0, 0, 3), App.Rotation())
sketch6.addGeometry(Part.LineSegment(App.Vector(-32, 79, 0), App.Vector(-17, 79, 0)), False)
sketch6.addGeometry(Part.LineSegment(App.Vector(-17, 79, 0), App.Vector(-17, 101, 0)), False)
sketch6.addGeometry(Part.ArcOfCircle(Part.Circle(App.Vector(-20, 101, 0), App.Vector(0, 0, 1), 3), math.radians(0), math.radians(90)), False)
sketch6.addGeometry(Part.LineSegment(App.Vector(-20, 104, 0), App.Vector(-29, 104, 0)), False)
sketch6.addGeometry(Part.ArcOfCircle(Part.Circle(App.Vector(-29, 101, 0), App.Vector(0, 0, 1), 3), math.radians(90), math.radians(180)), False)
sketch6.addGeometry(Part.LineSegment(App.Vector(-32, 101, 0), App.Vector(-32, 79, 0)), False)
sketch6.addGeometry(Part.Circle(App.Vector(-24.5, 96.5, 0), App.Vector(0, 0, 1), 2.25), False)
sketch6.addGeometry(Part.LineSegment(App.Vector(-17, -3, 0), App.Vector(-32, -3, 0)), False)
sketch6.addGeometry(Part.LineSegment(App.Vector(-32, -3, 0), App.Vector(-32, -25, 0)), False)
sketch6.addGeometry(Part.ArcOfCircle(Part.Circle(App.Vector(-29, -25, 0), App.Vector(0, 0, 1), 3), math.radians(180), math.radians(270)), False)
sketch6.addGeometry(Part.LineSegment(App.Vector(-29, -28, 0), App.Vector(-20, -28, 0)), False)
sketch6.addGeometry(Part.ArcOfCircle(Part.Circle(App.Vector(-20, -25, 0), App.Vector(0, 0, 1), 3), math.radians(-90), math.radians(0)), False)
sketch6.addGeometry(Part.LineSegment(App.Vector(-17, -25, 0), App.Vector(-17, -3, 0)), False)
sketch6.addGeometry(Part.Circle(App.Vector(-24.5, -20.5, 0), App.Vector(0, 0, 1), 2.25), False)
sketch6.addGeometry(Part.LineSegment(App.Vector(-74, 79, 0), App.Vector(-59, 79, 0)), False)
sketch6.addGeometry(Part.LineSegment(App.Vector(-59, 79, 0), App.Vector(-59, 101, 0)), False)
sketch6.addGeometry(Part.ArcOfCircle(Part.Circle(App.Vector(-62, 101, 0), App.Vector(0, 0, 1), 3), math.radians(0), math.radians(90)), False)
sketch6.addGeometry(Part.LineSegment(App.Vector(-62, 104, 0), App.Vector(-71, 104, 0)), False)
sketch6.addGeometry(Part.ArcOfCircle(Part.Circle(App.Vector(-71, 101, 0), App.Vector(0, 0, 1), 3), math.radians(90), math.radians(180)), False)
sketch6.addGeometry(Part.LineSegment(App.Vector(-74, 101, 0), App.Vector(-74, 79, 0)), False)
sketch6.addGeometry(Part.Circle(App.Vector(-66.5, 96.5, 0), App.Vector(0, 0, 1), 2.25), False)
sketch6.addGeometry(Part.LineSegment(App.Vector(-59, -3, 0), App.Vector(-74, -3, 0)), False)
sketch6.addGeometry(Part.LineSegment(App.Vector(-74, -3, 0), App.Vector(-74, -25, 0)), False)
sketch6.addGeometry(Part.ArcOfCircle(Part.Circle(App.Vector(-71, -25, 0), App.Vector(0, 0, 1), 3), math.radians(180), math.radians(270)), False)
sketch6.addGeometry(Part.LineSegment(App.Vector(-71, -28, 0), App.Vector(-62, -28, 0)), False)
sketch6.addGeometry(Part.ArcOfCircle(Part.Circle(App.Vector(-62, -25, 0), App.Vector(0, 0, 1), 3), math.radians(-90), math.radians(0)), False)
sketch6.addGeometry(Part.LineSegment(App.Vector(-59, -25, 0), App.Vector(-59, -3, 0)), False)
sketch6.addGeometry(Part.Circle(App.Vector(-66.5, -20.5, 0), App.Vector(0, 0, 1), 2.25), False)
sketch6.addConstraint(Sketcher.Constraint("Coincident", 0, 2, 1, 1))
sketch6.addConstraint(Sketcher.Constraint("Tangent", 1, 2, 2, 1))
sketch6.addConstraint(Sketcher.Constraint("Tangent", 2, 2, 3, 1))
sketch6.addConstraint(Sketcher.Constraint("Tangent", 3, 2, 4, 1))
sketch6.addConstraint(Sketcher.Constraint("Tangent", 4, 2, 5, 1))
sketch6.addConstraint(Sketcher.Constraint("Coincident", 5, 2, 0, 1))
sketch6.addConstraint(Sketcher.Constraint("Coincident", 7, 2, 8, 1))
sketch6.addConstraint(Sketcher.Constraint("Tangent", 8, 2, 9, 1))
sketch6.addConstraint(Sketcher.Constraint("Tangent", 9, 2, 10, 1))
sketch6.addConstraint(Sketcher.Constraint("Tangent", 10, 2, 11, 1))
sketch6.addConstraint(Sketcher.Constraint("Tangent", 11, 2, 12, 1))
sketch6.addConstraint(Sketcher.Constraint("Coincident", 12, 2, 7, 1))
sketch6.addConstraint(Sketcher.Constraint("Coincident", 14, 2, 15, 1))
sketch6.addConstraint(Sketcher.Constraint("Tangent", 15, 2, 16, 1))
sketch6.addConstraint(Sketcher.Constraint("Tangent", 16, 2, 17, 1))
sketch6.addConstraint(Sketcher.Constraint("Tangent", 17, 2, 18, 1))
sketch6.addConstraint(Sketcher.Constraint("Tangent", 18, 2, 19, 1))
sketch6.addConstraint(Sketcher.Constraint("Coincident", 19, 2, 14, 1))
sketch6.addConstraint(Sketcher.Constraint("Coincident", 21, 2, 22, 1))
sketch6.addConstraint(Sketcher.Constraint("Tangent", 22, 2, 23, 1))
sketch6.addConstraint(Sketcher.Constraint("Tangent", 23, 2, 24, 1))
sketch6.addConstraint(Sketcher.Constraint("Tangent", 24, 2, 25, 1))
sketch6.addConstraint(Sketcher.Constraint("Tangent", 25, 2, 26, 1))
sketch6.addConstraint(Sketcher.Constraint("Coincident", 26, 2, 21, 1))
sketch6.addConstraint(Sketcher.Constraint("Horizontal", 0))
sketch6.addConstraint(Sketcher.Constraint("Vertical", 1))
sketch6.addConstraint(Sketcher.Constraint("Horizontal", 3))
sketch6.addConstraint(Sketcher.Constraint("Vertical", 5))
sketch6.addConstraint(Sketcher.Constraint("Horizontal", 7))
sketch6.addConstraint(Sketcher.Constraint("Vertical", 8))
sketch6.addConstraint(Sketcher.Constraint("Horizontal", 10))
sketch6.addConstraint(Sketcher.Constraint("Vertical", 12))
sketch6.addConstraint(Sketcher.Constraint("Horizontal", 14))
sketch6.addConstraint(Sketcher.Constraint("Vertical", 15))
sketch6.addConstraint(Sketcher.Constraint("Horizontal", 17))
sketch6.addConstraint(Sketcher.Constraint("Vertical", 19))
sketch6.addConstraint(Sketcher.Constraint("Horizontal", 21))
sketch6.addConstraint(Sketcher.Constraint("Vertical", 22))
sketch6.addConstraint(Sketcher.Constraint("Horizontal", 24))
sketch6.addConstraint(Sketcher.Constraint("Vertical", 26))
sketch6.addConstraint(Sketcher.Constraint("Equal", 2, 4))
sketch6.addConstraint(Sketcher.Constraint("Equal", 4, 9))
sketch6.addConstraint(Sketcher.Constraint("Equal", 9, 11))
sketch6.addConstraint(Sketcher.Constraint("Equal", 6, 13))
sketch6.addConstraint(Sketcher.Constraint("Equal", 11, 16))
sketch6.addConstraint(Sketcher.Constraint("Equal", 16, 18))
sketch6.addConstraint(Sketcher.Constraint("Equal", 13, 20))
sketch6.addConstraint(Sketcher.Constraint("Equal", 18, 23))
sketch6.addConstraint(Sketcher.Constraint("Equal", 23, 25))
sketch6.addConstraint(Sketcher.Constraint("Equal", 20, 27))
sketch6.addConstraint(Sketcher.Constraint("Horizontal", 4, 3, 16, 3))
sketch6.addConstraint(Sketcher.Constraint("Horizontal", 6, 3, 20, 3))
sketch6.addConstraint(Sketcher.Constraint("Horizontal", 11, 3, 23, 3))
sketch6.addConstraint(Sketcher.Constraint("Horizontal", 13, 3, 27, 3))
sketch6.addConstraint(Sketcher.Constraint("Horizontal", 5, 2, 14, 2))
sketch6.addConstraint(Sketcher.Constraint("Horizontal", 12, 2, 21, 2))
sketch6.addConstraint(Sketcher.Constraint("Vertical", 4, 3, 9, 3))
sketch6.addConstraint(Sketcher.Constraint("Vertical", 2, 3, 11, 3))
sketch6.addConstraint(Sketcher.Constraint("Vertical", 6, 3, 13, 3))
sketch6.addConstraint(Sketcher.Constraint("Vertical", 18, 3, 23, 3))
sketch6.addConstraint(Sketcher.Constraint("Vertical", 16, 3, 25, 3))
sketch6.addConstraint(Sketcher.Constraint("Vertical", 20, 3, 27, 3))
sketch6.addConstraint(Sketcher.Constraint("Equal", 7, 14))
sketch6.addConstraint(Sketcher.Constraint("Equal", 5, 8))
sketch6.addConstraint(Sketcher.Constraint("Radius", 2, 3.0))
sketch6.addConstraint(Sketcher.Constraint("Diameter", 6, 4.5))
sketch6.addConstraint(Sketcher.Constraint("DistanceX", 0, 1, 0, 2, 15.0))
sketch6.addConstraint(Sketcher.Constraint("DistanceY", 1, 1, 1, 2, 22.0))
sketch6.addConstraint(Sketcher.Constraint("DistanceX", 2, 3, -1, 1, 20.0))
sketch6.addConstraint(Sketcher.Constraint("DistanceY", -1, 1, 2, 3, 101.0))
sketch6.addConstraint(Sketcher.Constraint("DistanceY", 9, 3, -1, 1, 25.0))
sketch6.addConstraint(Sketcher.Constraint("DistanceX", 16, 3, -1, 1, 62.0))
sketch6.addConstraint(Sketcher.Constraint("DistanceY", 13, 3, 6, 3, 117.0))
sketch6.addConstraint(Sketcher.Constraint("DistanceX", 20, 3, 6, 3, 42.0))
sketch6.addConstraint(Sketcher.Constraint("DistanceX", 6, 3, -1, 1, 24.5))
sketch6.addConstraint(Sketcher.Constraint("DistanceY", -1, 1, 6, 3, 96.5))
sketch6.setExpression("Constraints[64]", "Params.sketch6_radius")
sketch6.setExpression("Constraints[65]", "Params.sketch6_diameter")
sketch6.setExpression("Constraints[66]", "Params.sketch6_width")
sketch6.setExpression("Constraints[67]", "Params.sketch6_height")
pad4 = body.newObject("PartDesign::Pad", "Pad003")
pad4.Profile = sketch6
pad4.setExpression("Length", "Params.pad4_length")
pad4.Reversed = True
doc.recompute()

fillet = body.newObject("PartDesign::Fillet", "Fillet")
fillet.Base = (pad4, edges_at(pad4, [
    (-24.5, 2, 79),
    (-17, -0.5, 79),
    (-32, -0.5, 79),
    (-17, -0.5, -3),
    (-24.5, 2, -3),
    (-32, -0.5, -3),
    (-66.5, 2, 79),
    (-59, -0.5, 79),
    (-74, -0.5, 79),
    (-59, -0.5, -3),
    (-66.5, 2, -3),
    (-74, -0.5, -3),
]))
fillet.setExpression("Radius", "Params.fillet_radius")

doc.recompute()
